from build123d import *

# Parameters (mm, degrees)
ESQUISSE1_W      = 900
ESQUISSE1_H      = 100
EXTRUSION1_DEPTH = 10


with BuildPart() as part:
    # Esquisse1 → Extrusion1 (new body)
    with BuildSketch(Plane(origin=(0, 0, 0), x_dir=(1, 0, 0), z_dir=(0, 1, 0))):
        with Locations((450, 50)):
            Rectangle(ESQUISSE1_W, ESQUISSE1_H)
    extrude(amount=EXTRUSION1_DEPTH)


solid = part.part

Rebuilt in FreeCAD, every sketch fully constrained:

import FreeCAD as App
import Part
import Sketcher


def add_polygon(sketch, points):
    """Adds a closed chain of lines whose ends are joined by coincident constraints."""
    first, n = sketch.GeometryCount, len(points)
    for a, b in zip(points, points[1:] + points[:1]):
        sketch.addGeometry(Part.LineSegment(App.Vector(*a, 0), App.Vector(*b, 0)), False)
    for i in range(n):
        sketch.addConstraint(Sketcher.Constraint("Coincident", first + i, 2, first + (i + 1) % n, 1))

doc = App.newDocument("Part")
body = doc.addObject("PartDesign::Body", "Body")

# Sketch on XZ plane
sketch1 = body.newObject("Sketcher::SketchObject", "Sketch")
sketch1.AttachmentSupport = (doc.getObject("XZ_Plane"), [""])
sketch1.MapMode = "FlatFace"
add_polygon(sketch1, [(0, -100), (0, 0), (900, 0), (900, -100)])  # lines 0-3
sketch1.addConstraint([
    Sketcher.Constraint("Vertical", 0),
    Sketcher.Constraint("Horizontal", 1),
    Sketcher.Constraint("Vertical", 2),
    Sketcher.Constraint("Horizontal", 3),
    Sketcher.Constraint("Coincident", 0, 2, -1, 1),
    Sketcher.Constraint("DistanceX", 1, 1, 1, 2, 900.0),
    Sketcher.Constraint("DistanceY", 0, 1, 0, 2, 100.0),
])
pad1 = body.newObject("PartDesign::Pad", "Pad")
pad1.Profile = sketch1
pad1.Length = 10
pad1.Reversed = True

doc.recompute()
